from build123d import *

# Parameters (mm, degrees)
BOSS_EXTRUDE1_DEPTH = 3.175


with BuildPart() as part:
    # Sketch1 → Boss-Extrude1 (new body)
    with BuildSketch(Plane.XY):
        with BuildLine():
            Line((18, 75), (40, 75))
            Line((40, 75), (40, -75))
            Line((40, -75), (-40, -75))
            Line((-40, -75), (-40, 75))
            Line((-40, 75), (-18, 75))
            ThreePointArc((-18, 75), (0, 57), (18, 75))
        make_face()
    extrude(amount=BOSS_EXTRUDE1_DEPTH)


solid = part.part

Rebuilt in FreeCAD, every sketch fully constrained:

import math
import FreeCAD as App
import Part
import Sketcher
from FreeCAD import Vector

doc = App.newDocument("Part")
body = doc.addObject("PartDesign::Body", "Body")

# Sketch on XY plane
sketch1 = body.newObject("Sketcher::SketchObject", "Sketch")
sketch1.AttachmentSupport = (doc.getObject("XY_Plane"), [""])
sketch1.MapMode = "FlatFace"
sketch1.addGeometry([
    Part.LineSegment(Vector(40, 75, 0), Vector(18, 75, 0)),  # 0
    Part.ArcOfCircle(Part.Circle(Vector(0, 75, 0), Vector(0, 0, 1), 18), math.radians(180), math.radians(360)),  # 1
    Part.LineSegment(Vector(-18, 75, 0), Vector(-40, 75, 0)),  # 2
    Part.LineSegment(Vector(-40, 75, 0), Vector(-40, -75, 0)),  # 3
    Part.LineSegment(Vector(-40, -75, 0), Vector(40, -75, 0)),  # 4
    Part.LineSegment(Vector(40, -75, 0), Vector(40, 75, 0)),  # 5
], False)
sketch1.addConstraint([
    Sketcher.Constraint("Coincident", 0, 2, 1, 2),
    Sketcher.Constraint("Coincident", 1, 1, 2, 1),
    Sketcher.Constraint("Coincident", 2, 2, 3, 1),
    Sketcher.Constraint("Coincident", 3, 2, 4, 1),
    Sketcher.Constraint("Coincident", 4, 2, 5, 1),
    Sketcher.Constraint("Coincident", 5, 2, 0, 1),
    Sketcher.Constraint("Horizontal", 0),
    Sketcher.Constraint("Horizontal", 2),
    Sketcher.Constraint("Vertical", 3),
    Sketcher.Constraint("Horizontal", 4),
    Sketcher.Constraint("Vertical", 5),
    Sketcher.Constraint("Symmetric", 2, 2, 4, 2, -1, 1),
    Sketcher.Constraint("Symmetric", 0, 2, 1, 1, -2),
    Sketcher.Constraint("Horizontal", 1, 3, 0, 2),
    Sketcher.Constraint("Radius", 1, 18.0),
    Sketcher.Constraint("DistanceX", 0, 2, 0, 1, 22.0),
    Sketcher.Constraint("DistanceY", 3, 2, 3, 1, 150.0),
])
pad1 = body.newObject("PartDesign::Pad", "Pad")
pad1.Profile = sketch1
pad1.Length = 3.175

doc.recompute()
